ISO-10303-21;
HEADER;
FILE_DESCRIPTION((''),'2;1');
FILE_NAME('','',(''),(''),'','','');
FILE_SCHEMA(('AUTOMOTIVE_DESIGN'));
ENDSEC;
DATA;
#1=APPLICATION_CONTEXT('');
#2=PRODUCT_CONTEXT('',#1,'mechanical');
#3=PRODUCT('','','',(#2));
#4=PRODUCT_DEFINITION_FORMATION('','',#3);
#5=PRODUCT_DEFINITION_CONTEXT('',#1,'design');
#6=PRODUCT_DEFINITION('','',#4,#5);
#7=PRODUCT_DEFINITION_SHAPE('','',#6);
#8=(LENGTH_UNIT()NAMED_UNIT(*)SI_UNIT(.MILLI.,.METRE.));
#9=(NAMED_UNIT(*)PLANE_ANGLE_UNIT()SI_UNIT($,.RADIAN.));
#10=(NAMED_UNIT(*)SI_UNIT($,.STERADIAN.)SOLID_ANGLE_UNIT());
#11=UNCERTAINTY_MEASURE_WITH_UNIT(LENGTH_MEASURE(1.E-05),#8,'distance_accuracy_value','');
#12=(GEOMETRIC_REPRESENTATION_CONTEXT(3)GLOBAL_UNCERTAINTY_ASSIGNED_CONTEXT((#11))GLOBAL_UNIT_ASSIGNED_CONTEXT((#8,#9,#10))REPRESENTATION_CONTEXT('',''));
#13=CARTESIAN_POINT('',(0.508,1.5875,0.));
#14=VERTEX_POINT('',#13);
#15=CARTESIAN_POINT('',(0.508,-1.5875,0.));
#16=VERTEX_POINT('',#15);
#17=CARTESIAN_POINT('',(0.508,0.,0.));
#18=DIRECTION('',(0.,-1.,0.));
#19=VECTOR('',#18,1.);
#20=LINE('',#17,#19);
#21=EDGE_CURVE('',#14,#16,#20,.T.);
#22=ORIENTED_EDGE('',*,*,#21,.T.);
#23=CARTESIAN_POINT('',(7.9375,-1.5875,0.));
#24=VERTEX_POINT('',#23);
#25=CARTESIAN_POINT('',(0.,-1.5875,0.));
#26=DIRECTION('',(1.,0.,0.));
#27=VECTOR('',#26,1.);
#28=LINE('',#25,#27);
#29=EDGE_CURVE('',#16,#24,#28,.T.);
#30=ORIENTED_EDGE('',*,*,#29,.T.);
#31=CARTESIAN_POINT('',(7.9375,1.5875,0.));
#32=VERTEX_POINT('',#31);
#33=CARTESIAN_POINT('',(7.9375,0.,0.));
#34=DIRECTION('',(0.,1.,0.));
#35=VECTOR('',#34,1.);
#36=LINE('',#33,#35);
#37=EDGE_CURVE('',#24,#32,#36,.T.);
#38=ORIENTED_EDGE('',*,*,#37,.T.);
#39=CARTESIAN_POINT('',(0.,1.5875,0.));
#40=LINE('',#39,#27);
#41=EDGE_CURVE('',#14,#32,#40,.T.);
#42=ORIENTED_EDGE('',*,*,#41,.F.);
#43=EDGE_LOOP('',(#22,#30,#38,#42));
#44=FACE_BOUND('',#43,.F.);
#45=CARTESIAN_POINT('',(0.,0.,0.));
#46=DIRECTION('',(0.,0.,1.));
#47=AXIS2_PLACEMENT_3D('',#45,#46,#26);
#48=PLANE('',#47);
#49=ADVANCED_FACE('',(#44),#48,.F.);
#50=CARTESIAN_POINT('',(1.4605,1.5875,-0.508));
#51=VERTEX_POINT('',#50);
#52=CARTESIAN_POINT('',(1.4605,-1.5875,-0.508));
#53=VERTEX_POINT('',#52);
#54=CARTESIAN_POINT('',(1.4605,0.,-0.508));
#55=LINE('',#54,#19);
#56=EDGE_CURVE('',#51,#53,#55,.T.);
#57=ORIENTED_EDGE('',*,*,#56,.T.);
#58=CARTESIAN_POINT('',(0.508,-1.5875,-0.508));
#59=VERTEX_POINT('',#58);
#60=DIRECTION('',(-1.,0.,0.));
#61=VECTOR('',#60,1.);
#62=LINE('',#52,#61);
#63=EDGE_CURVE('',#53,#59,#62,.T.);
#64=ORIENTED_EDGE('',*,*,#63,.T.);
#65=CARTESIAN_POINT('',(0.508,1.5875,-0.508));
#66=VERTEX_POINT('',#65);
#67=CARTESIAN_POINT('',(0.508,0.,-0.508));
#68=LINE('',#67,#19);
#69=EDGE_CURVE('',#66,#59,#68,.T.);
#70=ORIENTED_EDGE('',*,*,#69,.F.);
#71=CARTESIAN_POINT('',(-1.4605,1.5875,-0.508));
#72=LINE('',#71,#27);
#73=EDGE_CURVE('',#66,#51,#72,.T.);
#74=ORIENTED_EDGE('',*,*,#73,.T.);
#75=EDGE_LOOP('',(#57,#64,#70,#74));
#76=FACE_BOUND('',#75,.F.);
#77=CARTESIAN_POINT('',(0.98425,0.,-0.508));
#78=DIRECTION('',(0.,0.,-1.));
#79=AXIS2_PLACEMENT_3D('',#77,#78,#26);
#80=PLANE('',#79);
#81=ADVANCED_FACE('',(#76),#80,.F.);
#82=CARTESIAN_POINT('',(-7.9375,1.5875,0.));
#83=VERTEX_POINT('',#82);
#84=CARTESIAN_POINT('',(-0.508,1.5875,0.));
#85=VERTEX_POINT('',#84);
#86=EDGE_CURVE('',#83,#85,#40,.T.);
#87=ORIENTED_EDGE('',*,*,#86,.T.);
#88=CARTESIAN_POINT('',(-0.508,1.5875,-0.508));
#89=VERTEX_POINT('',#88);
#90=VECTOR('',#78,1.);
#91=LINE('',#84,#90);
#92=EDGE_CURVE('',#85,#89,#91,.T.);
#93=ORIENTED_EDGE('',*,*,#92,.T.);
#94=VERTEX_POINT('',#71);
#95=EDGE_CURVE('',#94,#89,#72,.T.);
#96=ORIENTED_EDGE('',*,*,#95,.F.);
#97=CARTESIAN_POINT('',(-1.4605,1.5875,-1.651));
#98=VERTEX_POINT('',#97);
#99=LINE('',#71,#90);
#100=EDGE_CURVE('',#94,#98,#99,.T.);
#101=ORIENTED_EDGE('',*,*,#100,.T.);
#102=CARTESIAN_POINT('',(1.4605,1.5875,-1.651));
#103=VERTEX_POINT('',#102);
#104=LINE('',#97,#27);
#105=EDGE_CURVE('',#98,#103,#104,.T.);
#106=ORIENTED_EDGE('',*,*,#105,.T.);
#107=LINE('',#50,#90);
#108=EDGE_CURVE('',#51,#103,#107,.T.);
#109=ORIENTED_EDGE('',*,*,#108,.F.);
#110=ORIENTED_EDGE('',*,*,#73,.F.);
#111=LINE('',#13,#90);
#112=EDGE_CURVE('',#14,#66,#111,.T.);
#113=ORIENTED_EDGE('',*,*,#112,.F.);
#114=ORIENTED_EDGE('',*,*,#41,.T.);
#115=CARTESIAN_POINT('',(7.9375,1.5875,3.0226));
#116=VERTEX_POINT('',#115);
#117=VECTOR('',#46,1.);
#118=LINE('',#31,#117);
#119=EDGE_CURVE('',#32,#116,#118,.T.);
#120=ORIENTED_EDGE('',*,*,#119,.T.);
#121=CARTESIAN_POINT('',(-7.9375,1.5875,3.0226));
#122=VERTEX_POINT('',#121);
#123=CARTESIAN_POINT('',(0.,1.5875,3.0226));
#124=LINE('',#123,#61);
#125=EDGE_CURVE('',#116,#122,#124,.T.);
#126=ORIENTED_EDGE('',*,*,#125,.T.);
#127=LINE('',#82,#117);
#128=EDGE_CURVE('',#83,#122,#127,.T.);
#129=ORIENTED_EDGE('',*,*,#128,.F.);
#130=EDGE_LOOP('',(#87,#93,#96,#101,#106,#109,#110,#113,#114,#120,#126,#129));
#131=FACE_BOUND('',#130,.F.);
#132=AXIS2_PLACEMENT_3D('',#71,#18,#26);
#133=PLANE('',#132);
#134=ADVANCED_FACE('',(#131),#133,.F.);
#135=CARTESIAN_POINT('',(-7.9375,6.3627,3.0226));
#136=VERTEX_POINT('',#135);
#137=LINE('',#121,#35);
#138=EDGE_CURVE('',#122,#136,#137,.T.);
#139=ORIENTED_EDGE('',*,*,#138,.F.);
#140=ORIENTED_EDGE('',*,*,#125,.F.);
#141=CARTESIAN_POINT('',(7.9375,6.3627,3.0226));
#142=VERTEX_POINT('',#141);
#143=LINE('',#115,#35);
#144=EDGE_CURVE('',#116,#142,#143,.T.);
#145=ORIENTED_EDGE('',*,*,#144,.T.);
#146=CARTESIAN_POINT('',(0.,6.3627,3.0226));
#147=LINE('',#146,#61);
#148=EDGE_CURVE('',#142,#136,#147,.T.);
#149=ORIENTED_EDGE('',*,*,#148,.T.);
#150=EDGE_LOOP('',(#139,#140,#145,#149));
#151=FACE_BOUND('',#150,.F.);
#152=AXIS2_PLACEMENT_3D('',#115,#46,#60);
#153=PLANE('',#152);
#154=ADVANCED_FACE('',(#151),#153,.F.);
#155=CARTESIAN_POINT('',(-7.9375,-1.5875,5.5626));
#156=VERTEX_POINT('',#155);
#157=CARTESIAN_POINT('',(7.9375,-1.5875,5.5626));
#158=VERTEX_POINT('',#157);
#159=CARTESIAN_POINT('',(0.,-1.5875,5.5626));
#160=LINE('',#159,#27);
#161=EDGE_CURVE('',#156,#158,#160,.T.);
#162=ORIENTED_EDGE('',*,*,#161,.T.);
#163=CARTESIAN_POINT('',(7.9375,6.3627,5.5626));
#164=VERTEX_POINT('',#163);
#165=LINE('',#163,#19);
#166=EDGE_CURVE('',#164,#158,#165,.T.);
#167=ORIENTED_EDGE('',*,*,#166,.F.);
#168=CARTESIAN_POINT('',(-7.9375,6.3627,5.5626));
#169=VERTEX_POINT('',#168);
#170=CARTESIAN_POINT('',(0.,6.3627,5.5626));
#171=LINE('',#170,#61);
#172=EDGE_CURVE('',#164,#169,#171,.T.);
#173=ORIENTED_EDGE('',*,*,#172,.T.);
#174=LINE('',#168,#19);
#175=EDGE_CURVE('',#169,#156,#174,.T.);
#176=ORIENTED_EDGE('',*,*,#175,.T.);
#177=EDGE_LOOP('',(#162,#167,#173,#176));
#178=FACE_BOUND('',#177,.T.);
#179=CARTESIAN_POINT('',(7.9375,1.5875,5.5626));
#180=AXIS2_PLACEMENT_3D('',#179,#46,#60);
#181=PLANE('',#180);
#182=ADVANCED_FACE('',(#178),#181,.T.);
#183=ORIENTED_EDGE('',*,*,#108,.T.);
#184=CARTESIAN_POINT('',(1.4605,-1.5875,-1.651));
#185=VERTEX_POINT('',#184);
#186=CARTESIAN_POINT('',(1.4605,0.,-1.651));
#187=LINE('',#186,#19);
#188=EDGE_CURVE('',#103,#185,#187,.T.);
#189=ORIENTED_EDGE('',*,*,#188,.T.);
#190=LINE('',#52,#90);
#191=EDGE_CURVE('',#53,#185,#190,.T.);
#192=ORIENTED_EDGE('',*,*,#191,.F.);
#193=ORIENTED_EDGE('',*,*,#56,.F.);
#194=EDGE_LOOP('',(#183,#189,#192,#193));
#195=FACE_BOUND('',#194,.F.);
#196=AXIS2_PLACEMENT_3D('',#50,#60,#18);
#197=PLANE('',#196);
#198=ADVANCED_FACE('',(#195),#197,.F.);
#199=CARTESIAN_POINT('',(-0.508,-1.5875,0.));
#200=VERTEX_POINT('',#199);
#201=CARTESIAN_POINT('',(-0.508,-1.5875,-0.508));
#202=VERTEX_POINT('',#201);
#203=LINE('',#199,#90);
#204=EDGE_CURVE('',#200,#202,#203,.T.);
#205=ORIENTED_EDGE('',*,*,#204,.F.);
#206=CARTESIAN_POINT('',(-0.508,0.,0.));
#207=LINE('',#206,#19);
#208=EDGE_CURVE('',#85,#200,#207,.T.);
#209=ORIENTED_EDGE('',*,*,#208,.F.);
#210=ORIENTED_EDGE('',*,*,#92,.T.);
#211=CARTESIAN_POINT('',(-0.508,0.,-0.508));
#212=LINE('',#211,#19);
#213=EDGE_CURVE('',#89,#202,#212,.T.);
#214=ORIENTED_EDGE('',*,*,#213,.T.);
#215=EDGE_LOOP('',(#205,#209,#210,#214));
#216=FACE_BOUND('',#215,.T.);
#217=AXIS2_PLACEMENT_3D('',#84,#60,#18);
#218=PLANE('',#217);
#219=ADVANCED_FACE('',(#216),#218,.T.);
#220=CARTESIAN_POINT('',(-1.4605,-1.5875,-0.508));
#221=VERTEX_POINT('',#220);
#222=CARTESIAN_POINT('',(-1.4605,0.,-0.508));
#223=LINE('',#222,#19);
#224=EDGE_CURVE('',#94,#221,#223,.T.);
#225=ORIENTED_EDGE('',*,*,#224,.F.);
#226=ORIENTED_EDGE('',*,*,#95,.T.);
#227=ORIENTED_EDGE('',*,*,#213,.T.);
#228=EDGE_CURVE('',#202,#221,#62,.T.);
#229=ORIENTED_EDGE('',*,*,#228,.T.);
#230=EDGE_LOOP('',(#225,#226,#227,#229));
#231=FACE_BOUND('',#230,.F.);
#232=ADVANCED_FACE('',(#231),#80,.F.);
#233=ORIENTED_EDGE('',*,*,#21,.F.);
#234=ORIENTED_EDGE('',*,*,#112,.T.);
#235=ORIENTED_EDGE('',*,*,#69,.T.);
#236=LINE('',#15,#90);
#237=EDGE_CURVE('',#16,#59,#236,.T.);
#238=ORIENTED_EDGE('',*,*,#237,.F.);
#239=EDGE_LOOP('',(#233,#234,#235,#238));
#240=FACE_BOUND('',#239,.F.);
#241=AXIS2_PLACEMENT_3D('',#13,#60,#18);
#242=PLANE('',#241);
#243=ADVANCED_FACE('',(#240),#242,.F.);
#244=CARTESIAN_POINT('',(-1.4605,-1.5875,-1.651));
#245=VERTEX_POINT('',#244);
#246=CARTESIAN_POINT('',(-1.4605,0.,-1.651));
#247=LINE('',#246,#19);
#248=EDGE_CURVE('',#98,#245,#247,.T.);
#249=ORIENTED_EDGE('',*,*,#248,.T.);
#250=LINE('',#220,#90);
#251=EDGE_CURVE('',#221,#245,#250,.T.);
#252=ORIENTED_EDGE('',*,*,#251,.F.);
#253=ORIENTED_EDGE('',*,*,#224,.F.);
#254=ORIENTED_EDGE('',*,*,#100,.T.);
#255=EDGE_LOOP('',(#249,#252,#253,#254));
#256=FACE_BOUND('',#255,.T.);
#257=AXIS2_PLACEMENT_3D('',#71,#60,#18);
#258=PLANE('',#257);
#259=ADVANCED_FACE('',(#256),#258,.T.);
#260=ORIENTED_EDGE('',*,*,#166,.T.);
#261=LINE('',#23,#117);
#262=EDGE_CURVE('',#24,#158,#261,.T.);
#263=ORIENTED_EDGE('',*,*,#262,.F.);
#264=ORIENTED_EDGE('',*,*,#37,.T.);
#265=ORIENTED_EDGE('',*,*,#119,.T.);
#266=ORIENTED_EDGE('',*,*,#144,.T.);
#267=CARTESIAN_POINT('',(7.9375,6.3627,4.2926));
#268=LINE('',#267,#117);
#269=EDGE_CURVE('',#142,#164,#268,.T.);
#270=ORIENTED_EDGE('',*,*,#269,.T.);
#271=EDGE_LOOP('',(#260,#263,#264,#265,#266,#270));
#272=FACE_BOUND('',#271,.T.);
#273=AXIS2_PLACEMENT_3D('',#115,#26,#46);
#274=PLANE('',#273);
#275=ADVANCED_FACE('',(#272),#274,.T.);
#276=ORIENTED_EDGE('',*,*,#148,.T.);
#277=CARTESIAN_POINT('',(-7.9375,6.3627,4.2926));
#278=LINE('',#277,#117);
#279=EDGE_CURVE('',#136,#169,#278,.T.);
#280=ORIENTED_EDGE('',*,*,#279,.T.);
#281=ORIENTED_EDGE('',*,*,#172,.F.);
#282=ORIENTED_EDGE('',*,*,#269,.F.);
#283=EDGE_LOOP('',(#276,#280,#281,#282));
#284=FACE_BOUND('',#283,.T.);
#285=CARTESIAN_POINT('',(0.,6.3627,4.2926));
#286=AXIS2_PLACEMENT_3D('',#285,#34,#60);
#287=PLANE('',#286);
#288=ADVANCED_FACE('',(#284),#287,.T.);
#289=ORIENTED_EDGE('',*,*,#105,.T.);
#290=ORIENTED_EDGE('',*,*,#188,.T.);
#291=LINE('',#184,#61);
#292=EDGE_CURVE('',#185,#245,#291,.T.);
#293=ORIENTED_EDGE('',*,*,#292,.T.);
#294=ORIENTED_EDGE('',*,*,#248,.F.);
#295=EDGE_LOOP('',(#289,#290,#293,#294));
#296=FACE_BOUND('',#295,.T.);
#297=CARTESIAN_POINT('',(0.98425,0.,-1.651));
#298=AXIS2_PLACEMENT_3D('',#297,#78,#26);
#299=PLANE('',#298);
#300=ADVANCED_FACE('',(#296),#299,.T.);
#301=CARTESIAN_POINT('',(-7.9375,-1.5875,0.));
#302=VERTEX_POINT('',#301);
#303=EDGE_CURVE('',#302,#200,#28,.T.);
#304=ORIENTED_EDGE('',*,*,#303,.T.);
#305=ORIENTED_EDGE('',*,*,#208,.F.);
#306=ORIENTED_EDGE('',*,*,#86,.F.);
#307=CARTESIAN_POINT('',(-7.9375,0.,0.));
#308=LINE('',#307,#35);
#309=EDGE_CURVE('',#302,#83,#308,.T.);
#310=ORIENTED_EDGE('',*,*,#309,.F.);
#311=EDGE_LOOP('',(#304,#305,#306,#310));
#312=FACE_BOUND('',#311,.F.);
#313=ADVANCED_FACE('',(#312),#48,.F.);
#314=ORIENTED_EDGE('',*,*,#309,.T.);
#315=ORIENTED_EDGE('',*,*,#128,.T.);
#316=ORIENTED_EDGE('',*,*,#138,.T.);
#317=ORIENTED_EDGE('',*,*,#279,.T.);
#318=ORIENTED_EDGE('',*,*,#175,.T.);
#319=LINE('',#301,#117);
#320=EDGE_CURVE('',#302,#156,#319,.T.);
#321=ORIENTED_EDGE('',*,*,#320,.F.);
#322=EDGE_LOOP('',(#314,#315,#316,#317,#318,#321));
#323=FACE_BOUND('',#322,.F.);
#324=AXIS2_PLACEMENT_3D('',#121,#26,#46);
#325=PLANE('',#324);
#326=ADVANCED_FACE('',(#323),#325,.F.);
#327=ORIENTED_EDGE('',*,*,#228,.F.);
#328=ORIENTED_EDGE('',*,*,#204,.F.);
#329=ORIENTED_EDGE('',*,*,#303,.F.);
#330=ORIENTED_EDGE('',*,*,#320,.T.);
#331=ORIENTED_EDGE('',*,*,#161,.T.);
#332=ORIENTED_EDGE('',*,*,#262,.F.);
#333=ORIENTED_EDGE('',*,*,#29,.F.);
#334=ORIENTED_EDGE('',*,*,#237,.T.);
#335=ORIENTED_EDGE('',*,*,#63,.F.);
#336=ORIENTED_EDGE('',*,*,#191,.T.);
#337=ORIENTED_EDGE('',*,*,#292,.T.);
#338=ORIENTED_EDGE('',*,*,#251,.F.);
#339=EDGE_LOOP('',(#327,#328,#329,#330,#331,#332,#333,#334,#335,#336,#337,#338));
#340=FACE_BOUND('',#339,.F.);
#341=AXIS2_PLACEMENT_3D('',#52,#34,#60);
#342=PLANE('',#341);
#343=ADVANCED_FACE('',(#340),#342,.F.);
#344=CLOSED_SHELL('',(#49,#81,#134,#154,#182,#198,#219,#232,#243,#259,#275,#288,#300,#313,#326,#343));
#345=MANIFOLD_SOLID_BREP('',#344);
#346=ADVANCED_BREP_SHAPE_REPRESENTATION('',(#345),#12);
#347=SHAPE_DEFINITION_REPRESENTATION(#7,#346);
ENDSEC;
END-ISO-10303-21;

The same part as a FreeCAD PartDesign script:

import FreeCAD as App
import Part
import Sketcher
Q = App.Units.Quantity


def add_polygon(sketch, points):
    """Adds a closed chain of lines whose ends are joined by coincident constraints."""
    first, n = sketch.GeometryCount, len(points)
    for a, b in zip(points, points[1:] + points[:1]):
        sketch.addGeometry(Part.LineSegment(App.Vector(*a, 0), App.Vector(*b, 0)), False)
    for i in range(n):
        sketch.addConstraint(Sketcher.Constraint("Coincident", first + i, 2, first + (i + 1) % n, 1))

doc = App.newDocument("Part")
params = doc.addObject("Spreadsheet::Sheet", "Params")
for row, (alias, value) in enumerate([
    ("sketch1_width", "0.625 in"),
    ("sketch1_height", "0.125 in"),
    ("pad1_length", "0.219 in"),
    ("sketch2_height", "0.1 in"),
    ("sketch2_width", "0.625 in"),
    ("pad2_length", "0.188 in"),
    ("sketch3_width", "0.04 in"),
    ("sketch3_height", "0.125 in"),
    ("pad3_length", "0.02 in"),
    ("sketch4_width", "0.115 in"),
    ("sketch4_height", "0.125 in"),
    ("pad4_length", "0.045 in"),
], start=1):
    params.set(f"A{row}", alias)
    params.set(f"B{row}", "=" + value)
    params.setAlias(f"B{row}", alias)

body = doc.addObject("PartDesign::Body", "Body")

# Sketch on XY plane
sketch1 = body.newObject("Sketcher::SketchObject", "Sketch")
sketch1.AttachmentSupport = (doc.getObject("XY_Plane"), [""])
sketch1.MapMode = "FlatFace"
add_polygon(sketch1, [(-7.9375, 1.5875), (-7.9375, -1.5875), (7.9375, -1.5875), (7.9375, 1.5875)])  # lines 0-3
sketch1.addConstraint([
    Sketcher.Constraint("Vertical", 0),
    Sketcher.Constraint("Horizontal", 1),
    Sketcher.Constraint("Vertical", 2),
    Sketcher.Constraint("Horizontal", 3),
    Sketcher.Constraint("Symmetric", 0, 2, 2, 2, -1, 1),
    Sketcher.Constraint("DistanceX", 1, 1, 1, 2, Q("0.625 in")),
    Sketcher.Constraint("DistanceY", 0, 2, 0, 1, Q("0.125 in")),
])
sketch1.setExpression("Constraints[9]", "Params.sketch1_width")
sketch1.setExpression("Constraints[10]", "Params.sketch1_height")
pad1 = body.newObject("PartDesign::Pad", "Pad")
pad1.Profile = sketch1
pad1.setExpression("Length", "Params.pad1_length")

# Sketch on XZ plane
sketch2 = body.newObject("Sketcher::SketchObject", "Sketch001")
sketch2.AttachmentSupport = (doc.getObject("XZ_Plane"), [""])
sketch2.MapMode = "FlatFace"
sketch2.AttachmentOffset = App.Placement(App.Vector(0, 0, -0.0625 * 25.4), App.Rotation())
add_polygon(sketch2, [(7.9375, 5.5626), (7.9375, 3.0226), (-7.9375, 3.0226), (-7.9375, 5.5626)])  # lines 0-3
sketch2.addConstraint([
    Sketcher.Constraint("Vertical", 0),
    Sketcher.Constraint("Horizontal", 1),
    Sketcher.Constraint("Vertical", 2),
    Sketcher.Constraint("Horizontal", 3),
    Sketcher.Constraint("DistanceY", 0, 2, 0, 1, Q("0.1 in")),
    Sketcher.Constraint("DistanceX", 1, 2, 1, 1, Q("0.625 in")),
    Sketcher.Constraint("DistanceX", -1, 1, 0, 2, Q("0.3125 in")),
    Sketcher.Constraint("DistanceY", -1, 1, 0, 2, Q("0.119 in")),
])
sketch2.setExpression("Constraints[8]", "Params.sketch2_height")
sketch2.setExpression("Constraints[9]", "Params.sketch2_width")
pad2 = body.newObject("PartDesign::Pad", "Pad001")
pad2.Profile = sketch2
pad2.setExpression("Length", "Params.pad2_length")
pad2.Reversed = True

# Sketch on XY plane
sketch3 = body.newObject("Sketcher::SketchObject", "Sketch002")
sketch3.AttachmentSupport = (doc.getObject("XY_Plane"), [""])
sketch3.MapMode = "FlatFace"
add_polygon(sketch3, [(-0.508, -1.5875), (-0.508, 1.5875), (0.508, 1.5875), (0.508, -1.5875)])  # lines 0-3
sketch3.addConstraint([
    Sketcher.Constraint("Vertical", 0),
    Sketcher.Constraint("Horizontal", 1),
    Sketcher.Constraint("Vertical", 2),
    Sketcher.Constraint("Horizontal", 3),
    Sketcher.Constraint("Symmetric", 0, 2, 2, 2, -1, 1),
    Sketcher.Constraint("DistanceX", 1, 1, 1, 2, Q("0.04 in")),
    Sketcher.Constraint("DistanceY", 0, 1, 0, 2, Q("0.125 in")),
])
sketch3.setExpression("Constraints[9]", "Params.sketch3_width")
sketch3.setExpression("Constraints[10]", "Params.sketch3_height")
pad3 = body.newObject("PartDesign::Pad", "Pad002")
pad3.Profile = sketch3
pad3.setExpression("Length", "Params.pad3_length")
pad3.Reversed = True

# Sketch on XY plane
sketch4 = body.newObject("Sketcher::SketchObject", "Sketch003")
sketch4.AttachmentSupport = (doc.getObject("XY_Plane"), [""])
sketch4.MapMode = "FlatFace"
sketch4.AttachmentOffset = App.Placement(App.Vector(0, 0, -0.02 * 25.4), App.Rotation())
add_polygon(sketch4, [(1.4605, 1.5875), (1.4605, -1.5875), (-1.4605, -1.5875), (-1.4605, 1.5875)])  # lines 0-3
sketch4.addConstraint([
    Sketcher.Constraint("Vertical", 0),
    Sketcher.Constraint("Horizontal", 1),
    Sketcher.Constraint("Vertical", 2),
    Sketcher.Constraint("Horizontal", 3),
    Sketcher.Constraint("Symmetric", 0, 2, 2, 2, -1, 1),
    Sketcher.Constraint("DistanceX", 1, 2, 1, 1, Q("0.115 in")),
    Sketcher.Constraint("DistanceY", 0, 2, 0, 1, Q("0.125 in")),
])
sketch4.setExpression("Constraints[9]", "Params.sketch4_width")
sketch4.setExpression("Constraints[10]", "Params.sketch4_height")
pad4 = body.newObject("PartDesign::Pad", "Pad003")
pad4.Profile = sketch4
pad4.setExpression("Length", "Params.pad4_length")
pad4.Reversed = True

doc.recompute()
